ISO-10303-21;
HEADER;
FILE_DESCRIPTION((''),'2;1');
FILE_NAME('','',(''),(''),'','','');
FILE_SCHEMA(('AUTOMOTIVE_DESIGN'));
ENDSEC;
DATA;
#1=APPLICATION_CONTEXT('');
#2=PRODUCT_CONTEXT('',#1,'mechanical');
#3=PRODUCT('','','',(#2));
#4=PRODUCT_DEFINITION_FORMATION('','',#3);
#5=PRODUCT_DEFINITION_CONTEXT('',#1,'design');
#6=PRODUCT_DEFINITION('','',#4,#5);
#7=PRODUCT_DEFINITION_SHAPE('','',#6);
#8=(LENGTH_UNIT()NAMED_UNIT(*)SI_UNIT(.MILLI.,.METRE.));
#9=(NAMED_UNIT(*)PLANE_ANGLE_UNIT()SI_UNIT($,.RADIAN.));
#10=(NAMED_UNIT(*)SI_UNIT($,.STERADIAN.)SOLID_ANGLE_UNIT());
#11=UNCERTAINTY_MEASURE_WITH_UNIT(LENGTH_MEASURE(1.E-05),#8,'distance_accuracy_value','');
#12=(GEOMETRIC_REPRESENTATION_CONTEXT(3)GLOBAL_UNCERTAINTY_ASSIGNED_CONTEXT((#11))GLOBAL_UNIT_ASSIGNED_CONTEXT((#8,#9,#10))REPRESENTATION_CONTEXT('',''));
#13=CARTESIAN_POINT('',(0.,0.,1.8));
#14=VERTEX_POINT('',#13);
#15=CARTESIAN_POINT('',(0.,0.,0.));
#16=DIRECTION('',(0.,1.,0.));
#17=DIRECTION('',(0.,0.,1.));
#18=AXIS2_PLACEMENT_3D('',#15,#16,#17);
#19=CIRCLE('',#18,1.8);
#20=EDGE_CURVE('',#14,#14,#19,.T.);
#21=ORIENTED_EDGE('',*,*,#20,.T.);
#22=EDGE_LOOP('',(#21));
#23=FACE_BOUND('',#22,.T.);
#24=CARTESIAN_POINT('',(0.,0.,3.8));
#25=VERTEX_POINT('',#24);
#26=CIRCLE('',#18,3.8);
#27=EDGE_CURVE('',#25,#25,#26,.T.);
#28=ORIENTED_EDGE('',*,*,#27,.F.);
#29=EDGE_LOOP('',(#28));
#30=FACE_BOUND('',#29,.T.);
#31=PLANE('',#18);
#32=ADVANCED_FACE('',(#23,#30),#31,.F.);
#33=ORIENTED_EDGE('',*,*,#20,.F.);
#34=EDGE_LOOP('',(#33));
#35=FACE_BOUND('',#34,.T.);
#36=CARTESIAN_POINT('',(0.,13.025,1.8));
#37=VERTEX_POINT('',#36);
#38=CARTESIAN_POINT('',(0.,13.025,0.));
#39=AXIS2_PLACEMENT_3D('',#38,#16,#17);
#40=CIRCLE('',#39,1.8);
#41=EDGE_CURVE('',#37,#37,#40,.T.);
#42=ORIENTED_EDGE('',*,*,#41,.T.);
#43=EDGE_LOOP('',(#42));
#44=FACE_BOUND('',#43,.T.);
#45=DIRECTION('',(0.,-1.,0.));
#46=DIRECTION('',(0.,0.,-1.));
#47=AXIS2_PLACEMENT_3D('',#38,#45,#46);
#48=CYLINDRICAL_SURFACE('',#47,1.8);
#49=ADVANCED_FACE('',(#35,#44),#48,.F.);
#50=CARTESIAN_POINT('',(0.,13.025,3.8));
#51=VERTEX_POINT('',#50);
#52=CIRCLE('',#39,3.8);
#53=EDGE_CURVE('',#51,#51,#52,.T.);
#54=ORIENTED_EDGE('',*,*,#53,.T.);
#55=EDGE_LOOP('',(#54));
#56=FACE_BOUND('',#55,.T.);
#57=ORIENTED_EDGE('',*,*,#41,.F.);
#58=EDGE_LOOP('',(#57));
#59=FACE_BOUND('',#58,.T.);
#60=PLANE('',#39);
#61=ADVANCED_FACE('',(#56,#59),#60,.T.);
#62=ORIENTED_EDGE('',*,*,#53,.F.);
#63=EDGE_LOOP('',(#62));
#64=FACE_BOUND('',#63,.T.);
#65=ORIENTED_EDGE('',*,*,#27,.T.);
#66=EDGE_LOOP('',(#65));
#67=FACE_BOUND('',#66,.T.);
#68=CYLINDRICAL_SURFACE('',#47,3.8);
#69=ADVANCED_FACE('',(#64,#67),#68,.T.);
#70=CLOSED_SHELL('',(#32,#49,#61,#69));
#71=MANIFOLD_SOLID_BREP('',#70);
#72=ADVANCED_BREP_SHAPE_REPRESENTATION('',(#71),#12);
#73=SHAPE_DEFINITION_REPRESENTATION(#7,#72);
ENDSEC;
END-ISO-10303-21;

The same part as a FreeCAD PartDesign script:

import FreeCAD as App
import Part
import Sketcher

V = App.Vector

doc = App.newDocument("Part")
params = doc.addObject("Spreadsheet::Sheet", "Params")
for row, (alias, value) in enumerate([
    ("sketch1_diameter", "7.6 mm"),
    ("sketch1_diameter2", "3.6 mm"),
    ("pad1_length", "13.025 mm"),
], start=1):
    params.set(f"A{row}", alias)
    params.set(f"B{row}", "=" + value)
    params.setAlias(f"B{row}", alias)

body = doc.addObject("PartDesign::Body", "Body")

# Sketch on XZ plane
sketch1 = doc.addObject("Sketcher::SketchObject", "Sketch")
body.addObject(sketch1)
sketch1.AttachmentSupport = (doc.XZ_Plane, [""])
sketch1.MapMode = "FlatFace"
sketch1.addGeometry([
    Part.Circle(V(0, 0, 0), V(0, 0, 1), 3.8),
    Part.Circle(V(0, 0, 0), V(0, 0, 1), 1.8),
], False)
sketch1.addConstraint([
    Sketcher.Constraint("Coincident", 0, 3, -1, 1),
    Sketcher.Constraint("Coincident", 1, 3, -1, 1),
    Sketcher.Constraint("Diameter", 0, 7.6),
    Sketcher.Constraint("Diameter", 1, 3.6),
])
sketch1.setExpression("Constraints[2]", "Params.sketch1_diameter")
sketch1.setExpression("Constraints[3]", "Params.sketch1_diameter2")
pad1 = doc.addObject("PartDesign::Pad", "Pad")
body.addObject(pad1)
pad1.Profile = sketch1
pad1.setExpression("Length", "Params.pad1_length")
pad1.Reversed = True

doc.recompute()
